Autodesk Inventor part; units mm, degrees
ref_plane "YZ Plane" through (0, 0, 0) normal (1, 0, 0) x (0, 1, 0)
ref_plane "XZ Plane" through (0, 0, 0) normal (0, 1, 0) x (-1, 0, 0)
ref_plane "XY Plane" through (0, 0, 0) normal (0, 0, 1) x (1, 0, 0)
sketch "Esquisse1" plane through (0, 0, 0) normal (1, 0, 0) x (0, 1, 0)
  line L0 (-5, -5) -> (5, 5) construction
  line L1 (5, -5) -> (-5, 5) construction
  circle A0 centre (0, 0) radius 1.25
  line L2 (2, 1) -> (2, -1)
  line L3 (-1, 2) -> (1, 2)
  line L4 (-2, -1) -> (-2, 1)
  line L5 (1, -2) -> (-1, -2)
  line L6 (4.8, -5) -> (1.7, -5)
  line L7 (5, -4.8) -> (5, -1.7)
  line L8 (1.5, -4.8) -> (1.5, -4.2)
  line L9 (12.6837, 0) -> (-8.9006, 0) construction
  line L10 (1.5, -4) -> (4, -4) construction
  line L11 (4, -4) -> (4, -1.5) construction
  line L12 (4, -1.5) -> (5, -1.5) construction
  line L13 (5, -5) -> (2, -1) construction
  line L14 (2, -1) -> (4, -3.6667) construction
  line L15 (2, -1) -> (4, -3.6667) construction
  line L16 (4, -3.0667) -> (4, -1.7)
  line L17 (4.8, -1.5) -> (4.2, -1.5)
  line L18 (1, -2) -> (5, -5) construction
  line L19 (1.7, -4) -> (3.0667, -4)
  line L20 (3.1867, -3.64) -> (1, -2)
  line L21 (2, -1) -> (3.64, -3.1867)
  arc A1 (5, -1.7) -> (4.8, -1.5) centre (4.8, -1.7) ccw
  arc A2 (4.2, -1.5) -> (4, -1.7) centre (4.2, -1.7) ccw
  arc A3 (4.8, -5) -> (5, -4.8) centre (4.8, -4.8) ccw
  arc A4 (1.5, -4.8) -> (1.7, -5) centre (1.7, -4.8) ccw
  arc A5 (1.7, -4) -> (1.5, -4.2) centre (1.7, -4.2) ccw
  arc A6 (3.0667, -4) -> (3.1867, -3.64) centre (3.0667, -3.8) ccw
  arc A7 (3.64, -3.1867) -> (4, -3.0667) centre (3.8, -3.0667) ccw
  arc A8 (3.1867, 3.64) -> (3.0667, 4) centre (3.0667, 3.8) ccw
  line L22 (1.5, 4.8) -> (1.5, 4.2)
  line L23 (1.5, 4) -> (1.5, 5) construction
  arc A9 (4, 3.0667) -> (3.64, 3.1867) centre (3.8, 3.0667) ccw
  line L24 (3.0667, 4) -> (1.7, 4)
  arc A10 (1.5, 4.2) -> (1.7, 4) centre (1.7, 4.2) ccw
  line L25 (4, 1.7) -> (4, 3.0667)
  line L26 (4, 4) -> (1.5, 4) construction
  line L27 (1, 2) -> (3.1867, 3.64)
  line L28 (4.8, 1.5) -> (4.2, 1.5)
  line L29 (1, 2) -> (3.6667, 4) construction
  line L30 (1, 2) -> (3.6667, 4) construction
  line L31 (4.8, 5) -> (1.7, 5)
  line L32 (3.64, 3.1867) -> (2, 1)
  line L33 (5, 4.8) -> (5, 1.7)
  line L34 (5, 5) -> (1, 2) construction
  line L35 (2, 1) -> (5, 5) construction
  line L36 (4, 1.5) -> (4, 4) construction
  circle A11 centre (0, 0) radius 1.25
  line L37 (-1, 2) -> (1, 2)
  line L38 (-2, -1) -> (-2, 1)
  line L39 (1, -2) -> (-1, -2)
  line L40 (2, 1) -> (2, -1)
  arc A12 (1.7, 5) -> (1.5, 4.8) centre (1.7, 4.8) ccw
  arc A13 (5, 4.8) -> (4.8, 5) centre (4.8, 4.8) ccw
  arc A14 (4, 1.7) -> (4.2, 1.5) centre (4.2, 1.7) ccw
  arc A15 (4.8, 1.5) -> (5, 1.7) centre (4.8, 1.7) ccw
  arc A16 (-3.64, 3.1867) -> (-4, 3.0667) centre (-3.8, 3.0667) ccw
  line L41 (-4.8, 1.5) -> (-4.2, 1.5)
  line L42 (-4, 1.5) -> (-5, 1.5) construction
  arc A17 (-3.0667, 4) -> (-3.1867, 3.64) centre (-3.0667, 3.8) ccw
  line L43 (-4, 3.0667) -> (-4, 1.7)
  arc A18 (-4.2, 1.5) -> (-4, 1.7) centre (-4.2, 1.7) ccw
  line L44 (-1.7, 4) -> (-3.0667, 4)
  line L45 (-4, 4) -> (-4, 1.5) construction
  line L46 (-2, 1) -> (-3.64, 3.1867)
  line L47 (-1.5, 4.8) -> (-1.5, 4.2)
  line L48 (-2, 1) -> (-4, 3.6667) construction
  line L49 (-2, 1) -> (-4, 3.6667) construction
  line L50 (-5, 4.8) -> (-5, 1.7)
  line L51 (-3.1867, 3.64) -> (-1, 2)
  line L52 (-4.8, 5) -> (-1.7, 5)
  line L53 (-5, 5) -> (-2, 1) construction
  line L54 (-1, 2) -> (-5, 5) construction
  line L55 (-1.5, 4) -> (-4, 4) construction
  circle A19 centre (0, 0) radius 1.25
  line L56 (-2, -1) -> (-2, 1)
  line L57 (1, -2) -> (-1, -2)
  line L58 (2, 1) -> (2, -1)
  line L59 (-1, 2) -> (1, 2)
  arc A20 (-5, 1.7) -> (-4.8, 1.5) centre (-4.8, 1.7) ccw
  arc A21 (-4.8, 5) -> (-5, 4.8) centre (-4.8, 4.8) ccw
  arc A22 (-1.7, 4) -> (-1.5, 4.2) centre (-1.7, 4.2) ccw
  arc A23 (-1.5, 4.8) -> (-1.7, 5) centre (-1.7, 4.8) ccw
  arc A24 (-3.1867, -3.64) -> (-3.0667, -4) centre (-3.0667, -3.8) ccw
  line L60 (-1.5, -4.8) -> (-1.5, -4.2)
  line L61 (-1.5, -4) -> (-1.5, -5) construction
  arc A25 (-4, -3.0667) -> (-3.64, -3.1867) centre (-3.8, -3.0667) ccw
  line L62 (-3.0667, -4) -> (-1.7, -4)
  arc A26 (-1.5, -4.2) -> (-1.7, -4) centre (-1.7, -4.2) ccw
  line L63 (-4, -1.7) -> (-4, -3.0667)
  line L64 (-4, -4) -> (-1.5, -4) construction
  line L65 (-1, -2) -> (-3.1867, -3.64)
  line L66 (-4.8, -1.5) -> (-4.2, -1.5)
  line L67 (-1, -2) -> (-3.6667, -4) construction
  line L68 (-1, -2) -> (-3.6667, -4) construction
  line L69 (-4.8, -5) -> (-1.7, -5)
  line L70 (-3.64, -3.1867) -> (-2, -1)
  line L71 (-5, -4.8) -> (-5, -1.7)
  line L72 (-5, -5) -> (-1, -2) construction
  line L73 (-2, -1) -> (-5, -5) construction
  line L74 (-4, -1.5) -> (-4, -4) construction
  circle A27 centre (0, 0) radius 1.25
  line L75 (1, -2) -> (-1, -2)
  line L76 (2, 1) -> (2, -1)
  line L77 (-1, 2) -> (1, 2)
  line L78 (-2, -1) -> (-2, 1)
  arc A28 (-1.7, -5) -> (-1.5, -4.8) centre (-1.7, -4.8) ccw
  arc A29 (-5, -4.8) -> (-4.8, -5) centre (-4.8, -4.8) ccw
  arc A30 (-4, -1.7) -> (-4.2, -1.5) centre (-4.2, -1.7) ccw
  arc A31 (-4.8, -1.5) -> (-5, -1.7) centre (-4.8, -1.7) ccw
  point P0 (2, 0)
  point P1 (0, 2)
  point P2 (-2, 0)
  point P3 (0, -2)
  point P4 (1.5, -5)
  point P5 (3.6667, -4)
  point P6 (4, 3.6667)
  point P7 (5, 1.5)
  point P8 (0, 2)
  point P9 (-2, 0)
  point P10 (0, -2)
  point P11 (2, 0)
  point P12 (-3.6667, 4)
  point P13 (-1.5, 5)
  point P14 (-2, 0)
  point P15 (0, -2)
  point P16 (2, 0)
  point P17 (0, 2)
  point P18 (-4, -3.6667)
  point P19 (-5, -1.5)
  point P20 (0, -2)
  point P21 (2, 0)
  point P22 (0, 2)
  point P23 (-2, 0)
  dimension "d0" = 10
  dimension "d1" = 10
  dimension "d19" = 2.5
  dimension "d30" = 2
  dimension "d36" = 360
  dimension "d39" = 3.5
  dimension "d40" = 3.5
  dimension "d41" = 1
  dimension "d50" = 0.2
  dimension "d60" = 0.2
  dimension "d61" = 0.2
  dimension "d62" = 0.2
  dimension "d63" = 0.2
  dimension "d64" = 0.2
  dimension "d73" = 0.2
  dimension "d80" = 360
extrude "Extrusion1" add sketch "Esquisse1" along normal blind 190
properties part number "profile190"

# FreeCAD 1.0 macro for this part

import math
import FreeCAD as App
import Part
import Sketcher

V = App.Vector
Q = App.Units.Quantity

doc = App.newDocument("Part")
body = doc.addObject("PartDesign::Body", "Body")

# Sketch on YZ plane
sketch1 = body.newObject("Sketcher::SketchObject", "Sketch")
sketch1.AttachmentSupport = (doc.getObject("YZ_Plane"), [""])
sketch1.MapMode = "FlatFace"
sketch1.addGeometry(Part.LineSegment(V(2, -1, 0), V(2, 1, 0)), False)
sketch1.addGeometry(Part.LineSegment(V(2, 1, 0), V(3.64, 3.19, 0)), False)
sketch1.addGeometry(Part.ArcOfCircle(Part.Circle(V(3.8, 3.07, 0), V(0, 0, 1), 0.2), math.radians(0), math.radians(143)), False)
sketch1.addGeometry(Part.LineSegment(V(4, 3.07, 0), V(4, 1.7, 0)), False)
sketch1.addGeometry(Part.ArcOfCircle(Part.Circle(V(4.2, 1.7, 0), V(0, 0, 1), 0.2), math.radians(180), math.radians(270)), False)
sketch1.addGeometry(Part.LineSegment(V(4.2, 1.5, 0), V(4.8, 1.5, 0)), False)
sketch1.addGeometry(Part.ArcOfCircle(Part.Circle(V(4.8, 1.7, 0), V(0, 0, 1), 0.2), math.radians(-90), math.radians(0)), False)
sketch1.addGeometry(Part.LineSegment(V(5, 1.7, 0), V(5, 4.8, 0)), False)
sketch1.addGeometry(Part.ArcOfCircle(Part.Circle(V(4.8, 4.8, 0), V(0, 0, 1), 0.2), math.radians(0), math.radians(90)), False)
sketch1.addGeometry(Part.LineSegment(V(4.8, 5, 0), V(1.7, 5, 0)), False)
sketch1.addGeometry(Part.ArcOfCircle(Part.Circle(V(1.7, 4.8, 0), V(0, 0, 1), 0.2), math.radians(90), math.radians(180)), False)
sketch1.addGeometry(Part.LineSegment(V(1.5, 4.8, 0), V(1.5, 4.2, 0)), False)
sketch1.addGeometry(Part.ArcOfCircle(Part.Circle(V(1.7, 4.2, 0), V(0, 0, 1), 0.2), math.radians(180), math.radians(270)), False)
sketch1.addGeometry(Part.LineSegment(V(1.7, 4, 0), V(3.07, 4, 0)), False)
sketch1.addGeometry(Part.ArcOfCircle(Part.Circle(V(3.07, 3.8, 0), V(0, 0, 1), 0.2), math.radians(-53), math.radians(90)), False)
sketch1.addGeometry(Part.LineSegment(V(3.19, 3.64, 0), V(1, 2, 0)), False)
sketch1.addGeometry(Part.LineSegment(V(1, 2, 0), V(-1, 2, 0)), False)
sketch1.addGeometry(Part.LineSegment(V(-1, 2, 0), V(-3.19, 3.64, 0)), False)
sketch1.addGeometry(Part.ArcOfCircle(Part.Circle(V(-3.07, 3.8, 0), V(0, 0, 1), 0.2), math.radians(90), math.radians(233)), False)
sketch1.addGeometry(Part.LineSegment(V(-3.07, 4, 0), V(-1.7, 4, 0)), False)
sketch1.addGeometry(Part.ArcOfCircle(Part.Circle(V(-1.7, 4.2, 0), V(0, 0, 1), 0.2), math.radians(-90), math.radians(0)), False)
sketch1.addGeometry(Part.LineSegment(V(-1.5, 4.2, 0), V(-1.5, 4.8, 0)), False)
sketch1.addGeometry(Part.ArcOfCircle(Part.Circle(V(-1.7, 4.8, 0), V(0, 0, 1), 0.2), math.radians(0), math.radians(90)), False)
sketch1.addGeometry(Part.LineSegment(V(-1.7, 5, 0), V(-4.8, 5, 0)), False)
sketch1.addGeometry(Part.ArcOfCircle(Part.Circle(V(-4.8, 4.8, 0), V(0, 0, 1), 0.2), math.radians(90), math.radians(180)), False)
sketch1.addGeometry(Part.LineSegment(V(-5, 4.8, 0), V(-5, 1.7, 0)), False)
sketch1.addGeometry(Part.ArcOfCircle(Part.Circle(V(-4.8, 1.7, 0), V(0, 0, 1), 0.2), math.radians(180), math.radians(270)), False)
sketch1.addGeometry(Part.LineSegment(V(-4.8, 1.5, 0), V(-4.2, 1.5, 0)), False)
sketch1.addGeometry(Part.ArcOfCircle(Part.Circle(V(-4.2, 1.7, 0), V(0, 0, 1), 0.2), math.radians(-90), math.radians(0)), False)
sketch1.addGeometry(Part.LineSegment(V(-4, 1.7, 0), V(-4, 3.07, 0)), False)
sketch1.addGeometry(Part.ArcOfCircle(Part.Circle(V(-3.8, 3.07, 0), V(0, 0, 1), 0.2), math.radians(37), math.radians(180)), False)
sketch1.addGeometry(Part.LineSegment(V(-3.64, 3.19, 0), V(-2, 1, 0)), False)
sketch1.addGeometry(Part.LineSegment(V(-2, 1, 0), V(-2, -1, 0)), False)
sketch1.addGeometry(Part.LineSegment(V(-2, -1, 0), V(-3.64, -3.19, 0)), False)
sketch1.addGeometry(Part.ArcOfCircle(Part.Circle(V(-3.8, -3.07, 0), V(0, 0, 1), 0.2), math.radians(180), math.radians(323)), False)
sketch1.addGeometry(Part.LineSegment(V(-4, -3.07, 0), V(-4, -1.7, 0)), False)
sketch1.addGeometry(Part.ArcOfCircle(Part.Circle(V(-4.2, -1.7, 0), V(0, 0, 1), 0.2), math.radians(0), math.radians(90)), False)
sketch1.addGeometry(Part.LineSegment(V(-4.2, -1.5, 0), V(-4.8, -1.5, 0)), False)
sketch1.addGeometry(Part.ArcOfCircle(Part.Circle(V(-4.8, -1.7, 0), V(0, 0, 1), 0.2), math.radians(90), math.radians(180)), False)
sketch1.addGeometry(Part.LineSegment(V(-5, -1.7, 0), V(-5, -4.8, 0)), False)
sketch1.addGeometry(Part.ArcOfCircle(Part.Circle(V(-4.8, -4.8, 0), V(0, 0, 1), 0.2), math.radians(180), math.radians(270)), False)
sketch1.addGeometry(Part.LineSegment(V(-4.8, -5, 0), V(-1.7, -5, 0)), False)
sketch1.addGeometry(Part.ArcOfCircle(Part.Circle(V(-1.7, -4.8, 0), V(0, 0, 1), 0.2), math.radians(-90), math.radians(0)), False)
sketch1.addGeometry(Part.LineSegment(V(-1.5, -4.8, 0), V(-1.5, -4.2, 0)), False)
sketch1.addGeometry(Part.ArcOfCircle(Part.Circle(V(-1.7, -4.2, 0), V(0, 0, 1), 0.2), math.radians(0), math.radians(90)), False)
sketch1.addGeometry(Part.LineSegment(V(-1.7, -4, 0), V(-3.07, -4, 0)), False)
sketch1.addGeometry(Part.ArcOfCircle(Part.Circle(V(-3.07, -3.8, 0), V(0, 0, 1), 0.2), math.radians(127), math.radians(270)), False)
sketch1.addGeometry(Part.LineSegment(V(-3.19, -3.64, 0), V(-1, -2, 0)), False)
sketch1.addGeometry(Part.LineSegment(V(-1, -2, 0), V(1, -2, 0)), False)
sketch1.addGeometry(Part.LineSegment(V(1, -2, 0), V(3.19, -3.64, 0)), False)
sketch1.addGeometry(Part.ArcOfCircle(Part.Circle(V(3.07, -3.8, 0), V(0, 0, 1), 0.2), math.radians(-90), math.radians(53)), False)
sketch1.addGeometry(Part.LineSegment(V(3.07, -4, 0), V(1.7, -4, 0)), False)
sketch1.addGeometry(Part.ArcOfCircle(Part.Circle(V(1.7, -4.2, 0), V(0, 0, 1), 0.2), math.radians(90), math.radians(180)), False)
sketch1.addGeometry(Part.LineSegment(V(1.5, -4.2, 0), V(1.5, -4.8, 0)), False)
sketch1.addGeometry(Part.ArcOfCircle(Part.Circle(V(1.7, -4.8, 0), V(0, 0, 1), 0.2), math.radians(180), math.radians(270)), False)
sketch1.addGeometry(Part.LineSegment(V(1.7, -5, 0), V(4.8, -5, 0)), False)
sketch1.addGeometry(Part.ArcOfCircle(Part.Circle(V(4.8, -4.8, 0), V(0, 0, 1), 0.2), math.radians(-90), math.radians(0)), False)
sketch1.addGeometry(Part.LineSegment(V(5, -4.8, 0), V(5, -1.7, 0)), False)
sketch1.addGeometry(Part.ArcOfCircle(Part.Circle(V(4.8, -1.7, 0), V(0, 0, 1), 0.2), math.radians(0), math.radians(90)), False)
sketch1.addGeometry(Part.LineSegment(V(4.8, -1.5, 0), V(4.2, -1.5, 0)), False)
sketch1.addGeometry(Part.ArcOfCircle(Part.Circle(V(4.2, -1.7, 0), V(0, 0, 1), 0.2), math.radians(90), math.radians(180)), False)
sketch1.addGeometry(Part.LineSegment(V(4, -1.7, 0), V(4, -3.07, 0)), False)
sketch1.addGeometry(Part.ArcOfCircle(Part.Circle(V(3.8, -3.07, 0), V(0, 0, 1), 0.2), math.radians(-143), math.radians(0)), False)
sketch1.addGeometry(Part.LineSegment(V(3.64, -3.19, 0), V(2, -1, 0)), False)
sketch1.addGeometry(Part.Circle(V(0, 0, 0), V(0, 0, 1), 1.25), False)
sketch1.addConstraint(Sketcher.Constraint("Coincident", 0, 2, 1, 1))
sketch1.addConstraint(Sketcher.Constraint("Tangent", 1, 2, 2, 2))
sketch1.addConstraint(Sketcher.Constraint("Tangent", 2, 1, 3, 1))
sketch1.addConstraint(Sketcher.Constraint("Tangent", 3, 2, 4, 1))
sketch1.addConstraint(Sketcher.Constraint("Tangent", 4, 2, 5, 1))
sketch1.addConstraint(Sketcher.Constraint("Tangent", 5, 2, 6, 1))
sketch1.addConstraint(Sketcher.Constraint("Tangent", 6, 2, 7, 1))
sketch1.addConstraint(Sketcher.Constraint("Tangent", 7, 2, 8, 1))
sketch1.addConstraint(Sketcher.Constraint("Tangent", 8, 2, 9, 1))
sketch1.addConstraint(Sketcher.Constraint("Tangent", 9, 2, 10, 1))
sketch1.addConstraint(Sketcher.Constraint("Tangent", 10, 2, 11, 1))
sketch1.addConstraint(Sketcher.Constraint("Tangent", 11, 2, 12, 1))
sketch1.addConstraint(Sketcher.Constraint("Tangent", 12, 2, 13, 1))
sketch1.addConstraint(Sketcher.Constraint("Tangent", 13, 2, 14, 2))
sketch1.addConstraint(Sketcher.Constraint("Tangent", 14, 1, 15, 1))
sketch1.addConstraint(Sketcher.Constraint("Coincident", 15, 2, 16, 1))
sketch1.addConstraint(Sketcher.Constraint("Coincident", 16, 2, 17, 1))
sketch1.addConstraint(Sketcher.Constraint("Tangent", 17, 2, 18, 2))
sketch1.addConstraint(Sketcher.Constraint("Tangent", 18, 1, 19, 1))
sketch1.addConstraint(Sketcher.Constraint("Tangent", 19, 2, 20, 1))
sketch1.addConstraint(Sketcher.Constraint("Tangent", 20, 2, 21, 1))
sketch1.addConstraint(Sketcher.Constraint("Tangent", 21, 2, 22, 1))
sketch1.addConstraint(Sketcher.Constraint("Tangent", 22, 2, 23, 1))
sketch1.addConstraint(Sketcher.Constraint("Tangent", 23, 2, 24, 1))
sketch1.addConstraint(Sketcher.Constraint("Tangent", 24, 2, 25, 1))
sketch1.addConstraint(Sketcher.Constraint("Tangent", 25, 2, 26, 1))
sketch1.addConstraint(Sketcher.Constraint("Tangent", 26, 2, 27, 1))
sketch1.addConstraint(Sketcher.Constraint("Tangent", 27, 2, 28, 1))
sketch1.addConstraint(Sketcher.Constraint("Tangent", 28, 2, 29, 1))
sketch1.addConstraint(Sketcher.Constraint("Tangent", 29, 2, 30, 2))
sketch1.addConstraint(Sketcher.Constraint("Tangent", 30, 1, 31, 1))
sketch1.addConstraint(Sketcher.Constraint("Coincident", 31, 2, 32, 1))
sketch1.addConstraint(Sketcher.Constraint("Coincident", 32, 2, 33, 1))
sketch1.addConstraint(Sketcher.Constraint("Tangent", 33, 2, 34, 2))
sketch1.addConstraint(Sketcher.Constraint("Tangent", 34, 1, 35, 1))
sketch1.addConstraint(Sketcher.Constraint("Tangent", 35, 2, 36, 1))
sketch1.addConstraint(Sketcher.Constraint("Tangent", 36, 2, 37, 1))
sketch1.addConstraint(Sketcher.Constraint("Tangent", 37, 2, 38, 1))
sketch1.addConstraint(Sketcher.Constraint("Tangent", 38, 2, 39, 1))
sketch1.addConstraint(Sketcher.Constraint("Tangent", 39, 2, 40, 1))
sketch1.addConstraint(Sketcher.Constraint("Tangent", 40, 2, 41, 1))
sketch1.addConstraint(Sketcher.Constraint("Tangent", 41, 2, 42, 1))
sketch1.addConstraint(Sketcher.Constraint("Tangent", 42, 2, 43, 1))
sketch1.addConstraint(Sketcher.Constraint("Tangent", 43, 2, 44, 1))
sketch1.addConstraint(Sketcher.Constraint("Tangent", 44, 2, 45, 1))
sketch1.addConstraint(Sketcher.Constraint("Tangent", 45, 2, 46, 2))
sketch1.addConstraint(Sketcher.Constraint("Tangent", 46, 1, 47, 1))
sketch1.addConstraint(Sketcher.Constraint("Coincident", 47, 2, 48, 1))
sketch1.addConstraint(Sketcher.Constraint("Coincident", 48, 2, 49, 1))
sketch1.addConstraint(Sketcher.Constraint("Tangent", 49, 2, 50, 2))
sketch1.addConstraint(Sketcher.Constraint("Tangent", 50, 1, 51, 1))
sketch1.addConstraint(Sketcher.Constraint("Tangent", 51, 2, 52, 1))
sketch1.addConstraint(Sketcher.Constraint("Tangent", 52, 2, 53, 1))
sketch1.addConstraint(Sketcher.Constraint("Tangent", 53, 2, 54, 1))
sketch1.addConstraint(Sketcher.Constraint("Tangent", 54, 2, 55, 1))
sketch1.addConstraint(Sketcher.Constraint("Tangent", 55, 2, 56, 1))
sketch1.addConstraint(Sketcher.Constraint("Tangent", 56, 2, 57, 1))
sketch1.addConstraint(Sketcher.Constraint("Tangent", 57, 2, 58, 1))
sketch1.addConstraint(Sketcher.Constraint("Tangent", 58, 2, 59, 1))
sketch1.addConstraint(Sketcher.Constraint("Tangent", 59, 2, 60, 1))
sketch1.addConstraint(Sketcher.Constraint("Tangent", 60, 2, 61, 1))
sketch1.addConstraint(Sketcher.Constraint("Tangent", 61, 2, 62, 2))
sketch1.addConstraint(Sketcher.Constraint("Tangent", 62, 1, 63, 1))
sketch1.addConstraint(Sketcher.Constraint("Coincident", 63, 2, 0, 1))
sketch1.addConstraint(Sketcher.Constraint("Vertical", 0))
sketch1.addConstraint(Sketcher.Constraint("Vertical", 3))
sketch1.addConstraint(Sketcher.Constraint("Horizontal", 5))
sketch1.addConstraint(Sketcher.Constraint("Vertical", 7))
sketch1.addConstraint(Sketcher.Constraint("Horizontal", 9))
sketch1.addConstraint(Sketcher.Constraint("Vertical", 11))
sketch1.addConstraint(Sketcher.Constraint("Horizontal", 13))
sketch1.addConstraint(Sketcher.Constraint("Horizontal", 16))
sketch1.addConstraint(Sketcher.Constraint("Horizontal", 19))
sketch1.addConstraint(Sketcher.Constraint("Vertical", 21))
sketch1.addConstraint(Sketcher.Constraint("Horizontal", 23))
sketch1.addConstraint(Sketcher.Constraint("Vertical", 25))
sketch1.addConstraint(Sketcher.Constraint("Horizontal", 27))
sketch1.addConstraint(Sketcher.Constraint("Vertical", 29))
sketch1.addConstraint(Sketcher.Constraint("Vertical", 32))
sketch1.addConstraint(Sketcher.Constraint("Vertical", 35))
sketch1.addConstraint(Sketcher.Constraint("Horizontal", 37))
sketch1.addConstraint(Sketcher.Constraint("Vertical", 39))
sketch1.addConstraint(Sketcher.Constraint("Horizontal", 41))
sketch1.addConstraint(Sketcher.Constraint("Vertical", 43))
sketch1.addConstraint(Sketcher.Constraint("Horizontal", 45))
sketch1.addConstraint(Sketcher.Constraint("Horizontal", 48))
sketch1.addConstraint(Sketcher.Constraint("Horizontal", 51))
sketch1.addConstraint(Sketcher.Constraint("Vertical", 53))
sketch1.addConstraint(Sketcher.Constraint("Horizontal", 55))
sketch1.addConstraint(Sketcher.Constraint("Vertical", 57))
sketch1.addConstraint(Sketcher.Constraint("Horizontal", 59))
sketch1.addConstraint(Sketcher.Constraint("Vertical", 61))
sketch1.addConstraint(Sketcher.Constraint("Coincident", 64, 3, -1, 1))
sketch1.addConstraint(Sketcher.Constraint("Equal", 2, 4))
sketch1.addConstraint(Sketcher.Constraint("Equal", 4, 6))
sketch1.addConstraint(Sketcher.Constraint("Equal", 6, 8))
sketch1.addConstraint(Sketcher.Constraint("Equal", 8, 10))
sketch1.addConstraint(Sketcher.Constraint("Equal", 10, 12))
sketch1.addConstraint(Sketcher.Constraint("Equal", 12, 14))
sketch1.addConstraint(Sketcher.Constraint("Equal", 14, 18))
sketch1.addConstraint(Sketcher.Constraint("Equal", 18, 20))
sketch1.addConstraint(Sketcher.Constraint("Equal", 20, 22))
sketch1.addConstraint(Sketcher.Constraint("Equal", 22, 24))
sketch1.addConstraint(Sketcher.Constraint("Equal", 24, 26))
sketch1.addConstraint(Sketcher.Constraint("Equal", 26, 28))
sketch1.addConstraint(Sketcher.Constraint("Equal", 28, 30))
sketch1.addConstraint(Sketcher.Constraint("Equal", 30, 34))
sketch1.addConstraint(Sketcher.Constraint("Equal", 34, 36))
sketch1.addConstraint(Sketcher.Constraint("Equal", 36, 38))
sketch1.addConstraint(Sketcher.Constraint("Equal", 38, 40))
sketch1.addConstraint(Sketcher.Constraint("Equal", 40, 42))
sketch1.addConstraint(Sketcher.Constraint("Equal", 42, 44))
sketch1.addConstraint(Sketcher.Constraint("Equal", 44, 46))
sketch1.addConstraint(Sketcher.Constraint("Equal", 46, 50))
sketch1.addConstraint(Sketcher.Constraint("Equal", 50, 52))
sketch1.addConstraint(Sketcher.Constraint("Equal", 52, 54))
sketch1.addConstraint(Sketcher.Constraint("Equal", 54, 56))
sketch1.addConstraint(Sketcher.Constraint("Equal", 56, 58))
sketch1.addConstraint(Sketcher.Constraint("Equal", 58, 60))
sketch1.addConstraint(Sketcher.Constraint("Equal", 60, 62))
sketch1.addConstraint(Sketcher.Constraint("Symmetric", 2, 3, 34, 3, -1, 1))
sketch1.addConstraint(Sketcher.Constraint("Symmetric", 6, 3, 38, 3, -1, 1))
sketch1.addConstraint(Sketcher.Constraint("Symmetric", 10, 3, 42, 3, -1, 1))
sketch1.addConstraint(Sketcher.Constraint("Symmetric", 14, 3, 46, 3, -1, 1))
sketch1.addConstraint(Sketcher.Constraint("Symmetric", 18, 3, 50, 3, -1, 1))
sketch1.addConstraint(Sketcher.Constraint("Symmetric", 22, 3, 54, 3, -1, 1))
sketch1.addConstraint(Sketcher.Constraint("Symmetric", 26, 3, 58, 3, -1, 1))
sketch1.addConstraint(Sketcher.Constraint("Symmetric", 30, 3, 62, 3, -1, 1))
sketch1.addConstraint(Sketcher.Constraint("Symmetric", 0, 2, 32, 2, -1, 1))
sketch1.addConstraint(Sketcher.Constraint("Symmetric", 15, 2, 47, 2, -1, 1))
sketch1.addConstraint(Sketcher.Constraint("Symmetric", 14, 3, 18, 3, -2))
sketch1.addConstraint(Sketcher.Constraint("Symmetric", 10, 3, 22, 3, -2))
sketch1.addConstraint(Sketcher.Constraint("Symmetric", 6, 3, 26, 3, -2))
sketch1.addConstraint(Sketcher.Constraint("Symmetric", 2, 3, 30, 3, -2))
sketch1.addConstraint(Sketcher.Constraint("Perpendicular", 1, 17))
sketch1.addConstraint(Sketcher.Constraint("Perpendicular", 15, 31))
sketch1.addConstraint(Sketcher.Constraint("Perpendicular", 33, 49))
sketch1.addConstraint(Sketcher.Constraint("Perpendicular", 47, 63))
sketch1.addConstraint(Sketcher.Constraint("Horizontal", 14, 1, 17, 2))
sketch1.addConstraint(Sketcher.Constraint("Equal", 48, 0))
sketch1.addConstraint(Sketcher.Constraint("Equal", 51, 3))
sketch1.addConstraint(Sketcher.Constraint("Equal", 55, 7))
sketch1.addConstraint(Sketcher.Constraint("Equal", 59, 11))
sketch1.addConstraint(Sketcher.Constraint("Equal", 1, 15))
sketch1.addConstraint(Sketcher.Constraint("Diameter", 64, 2.5))
sketch1.addConstraint(Sketcher.Constraint("Radius", 2, 0.2))
sketch1.addConstraint(Sketcher.Constraint("DistanceX", 16, 2, 16, 1, 2.0))
sketch1.addConstraint(Sketcher.Constraint("DistanceX", -1, 1, 0, 2, 2.0))
sketch1.addConstraint(Sketcher.Constraint("DistanceX", 5, 1, 5, 2, 0.6))
sketch1.addConstraint(Sketcher.Constraint("DistanceX", 9, 2, 9, 1, 3.1))
sketch1.addConstraint(Sketcher.Constraint("DistanceX", -1, 1, 2, 1, 4.0))
sketch1.addConstraint(Sketcher.Constraint("Angle", 1, Q("53.1305 deg")))
pad1 = body.newObject("PartDesign::Pad", "Pad")
pad1.Profile = sketch1
pad1.Length = 190

doc.recompute()
